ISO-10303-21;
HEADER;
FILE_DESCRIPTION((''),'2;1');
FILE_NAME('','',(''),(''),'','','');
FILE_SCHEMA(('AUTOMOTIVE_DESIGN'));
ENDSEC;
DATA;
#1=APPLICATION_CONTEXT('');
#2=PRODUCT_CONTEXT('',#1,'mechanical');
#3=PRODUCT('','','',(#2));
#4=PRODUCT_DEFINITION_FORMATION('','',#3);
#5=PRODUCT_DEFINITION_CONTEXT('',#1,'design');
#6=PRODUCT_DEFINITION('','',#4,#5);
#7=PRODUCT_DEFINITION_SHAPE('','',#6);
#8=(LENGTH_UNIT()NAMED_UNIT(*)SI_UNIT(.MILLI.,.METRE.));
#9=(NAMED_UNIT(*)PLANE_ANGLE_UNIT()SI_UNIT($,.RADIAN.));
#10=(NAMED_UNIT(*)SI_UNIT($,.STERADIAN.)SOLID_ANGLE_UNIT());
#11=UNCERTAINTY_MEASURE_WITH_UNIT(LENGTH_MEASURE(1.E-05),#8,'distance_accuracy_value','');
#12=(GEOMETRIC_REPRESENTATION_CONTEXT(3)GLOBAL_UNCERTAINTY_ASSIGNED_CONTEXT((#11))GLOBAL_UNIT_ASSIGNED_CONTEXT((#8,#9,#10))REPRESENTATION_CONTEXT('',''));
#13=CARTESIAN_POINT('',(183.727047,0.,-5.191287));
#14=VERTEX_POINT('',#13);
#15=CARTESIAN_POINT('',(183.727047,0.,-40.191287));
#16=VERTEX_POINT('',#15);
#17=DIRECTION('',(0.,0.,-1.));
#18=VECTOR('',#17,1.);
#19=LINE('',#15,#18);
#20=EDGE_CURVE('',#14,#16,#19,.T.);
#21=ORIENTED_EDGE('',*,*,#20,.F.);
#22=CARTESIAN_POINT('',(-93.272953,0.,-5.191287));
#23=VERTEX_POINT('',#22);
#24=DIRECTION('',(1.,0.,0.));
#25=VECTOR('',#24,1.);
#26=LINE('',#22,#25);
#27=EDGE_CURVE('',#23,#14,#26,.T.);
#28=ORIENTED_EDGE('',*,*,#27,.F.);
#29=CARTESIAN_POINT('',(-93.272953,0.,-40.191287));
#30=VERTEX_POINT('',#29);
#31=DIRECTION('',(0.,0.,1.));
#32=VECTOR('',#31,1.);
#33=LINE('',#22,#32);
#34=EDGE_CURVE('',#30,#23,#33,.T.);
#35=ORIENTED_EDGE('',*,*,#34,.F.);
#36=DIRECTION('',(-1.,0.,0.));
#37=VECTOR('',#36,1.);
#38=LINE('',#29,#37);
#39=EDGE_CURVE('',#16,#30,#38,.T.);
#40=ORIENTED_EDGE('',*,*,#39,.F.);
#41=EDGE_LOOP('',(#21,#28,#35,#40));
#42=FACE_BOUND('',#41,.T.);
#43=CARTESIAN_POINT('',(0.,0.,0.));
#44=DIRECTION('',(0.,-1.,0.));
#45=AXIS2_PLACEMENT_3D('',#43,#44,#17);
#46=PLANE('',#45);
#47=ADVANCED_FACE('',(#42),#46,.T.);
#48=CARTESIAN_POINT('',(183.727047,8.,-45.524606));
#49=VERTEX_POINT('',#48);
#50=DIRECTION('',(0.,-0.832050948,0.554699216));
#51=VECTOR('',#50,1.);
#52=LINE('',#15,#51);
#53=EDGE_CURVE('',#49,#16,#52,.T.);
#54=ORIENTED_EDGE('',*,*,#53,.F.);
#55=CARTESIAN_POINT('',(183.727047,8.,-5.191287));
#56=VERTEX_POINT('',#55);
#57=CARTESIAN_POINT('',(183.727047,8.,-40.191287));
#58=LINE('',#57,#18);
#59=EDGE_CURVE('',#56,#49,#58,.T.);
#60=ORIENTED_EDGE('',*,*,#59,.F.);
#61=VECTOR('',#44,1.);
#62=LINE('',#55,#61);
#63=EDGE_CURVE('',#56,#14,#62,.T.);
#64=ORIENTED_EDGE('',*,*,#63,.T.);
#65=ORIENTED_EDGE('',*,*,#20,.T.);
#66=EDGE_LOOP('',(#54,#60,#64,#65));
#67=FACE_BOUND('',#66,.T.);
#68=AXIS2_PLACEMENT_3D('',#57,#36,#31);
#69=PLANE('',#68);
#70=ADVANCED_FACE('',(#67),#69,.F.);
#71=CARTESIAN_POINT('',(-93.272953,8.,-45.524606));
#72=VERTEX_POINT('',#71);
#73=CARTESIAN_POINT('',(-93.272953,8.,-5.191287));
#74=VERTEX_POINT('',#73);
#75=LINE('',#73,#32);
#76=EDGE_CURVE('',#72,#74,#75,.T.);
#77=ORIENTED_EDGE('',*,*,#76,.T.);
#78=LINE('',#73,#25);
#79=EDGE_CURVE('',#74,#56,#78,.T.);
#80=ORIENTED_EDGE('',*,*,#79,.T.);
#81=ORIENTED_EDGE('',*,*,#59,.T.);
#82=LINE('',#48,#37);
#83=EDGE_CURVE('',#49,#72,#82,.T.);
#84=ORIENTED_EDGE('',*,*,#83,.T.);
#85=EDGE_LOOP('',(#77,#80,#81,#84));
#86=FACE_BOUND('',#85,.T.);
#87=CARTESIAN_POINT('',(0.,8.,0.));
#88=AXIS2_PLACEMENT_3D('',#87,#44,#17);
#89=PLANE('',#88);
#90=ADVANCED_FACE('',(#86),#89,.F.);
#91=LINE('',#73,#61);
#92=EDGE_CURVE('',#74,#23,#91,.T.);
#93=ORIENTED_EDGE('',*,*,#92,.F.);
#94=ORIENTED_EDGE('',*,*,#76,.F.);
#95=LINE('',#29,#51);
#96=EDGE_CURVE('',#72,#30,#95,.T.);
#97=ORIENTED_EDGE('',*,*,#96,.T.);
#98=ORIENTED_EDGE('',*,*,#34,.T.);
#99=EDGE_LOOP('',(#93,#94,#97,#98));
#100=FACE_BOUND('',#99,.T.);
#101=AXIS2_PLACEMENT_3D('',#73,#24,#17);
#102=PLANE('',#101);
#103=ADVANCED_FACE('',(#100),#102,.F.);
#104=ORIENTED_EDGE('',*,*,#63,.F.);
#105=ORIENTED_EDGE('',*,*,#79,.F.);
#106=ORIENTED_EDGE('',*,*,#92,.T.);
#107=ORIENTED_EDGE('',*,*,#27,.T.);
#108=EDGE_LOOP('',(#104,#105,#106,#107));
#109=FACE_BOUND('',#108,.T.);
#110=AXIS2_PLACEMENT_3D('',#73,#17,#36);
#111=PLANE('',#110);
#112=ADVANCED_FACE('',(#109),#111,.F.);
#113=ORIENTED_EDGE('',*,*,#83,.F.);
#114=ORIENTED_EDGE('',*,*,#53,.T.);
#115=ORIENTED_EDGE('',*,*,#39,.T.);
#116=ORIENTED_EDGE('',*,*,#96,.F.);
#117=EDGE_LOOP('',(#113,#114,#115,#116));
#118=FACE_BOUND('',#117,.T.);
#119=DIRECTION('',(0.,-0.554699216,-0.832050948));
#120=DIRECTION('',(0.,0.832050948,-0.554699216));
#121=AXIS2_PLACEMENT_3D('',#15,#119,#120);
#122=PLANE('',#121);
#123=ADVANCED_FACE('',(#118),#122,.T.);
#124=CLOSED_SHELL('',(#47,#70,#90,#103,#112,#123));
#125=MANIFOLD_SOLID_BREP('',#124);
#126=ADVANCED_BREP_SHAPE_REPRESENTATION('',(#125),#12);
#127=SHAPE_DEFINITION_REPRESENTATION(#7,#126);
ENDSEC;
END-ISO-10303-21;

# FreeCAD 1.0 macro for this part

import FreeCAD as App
import Part
import Sketcher
Q = App.Units.Quantity

doc = App.newDocument("Part")
body = doc.addObject("PartDesign::Body", "Body")

sketch1 = body.newObject("Sketcher::SketchObject", "Sketch")
sketch1.AttachmentSupport = (doc.getObject("XZ_Plane"), [""])
sketch1.MapMode = "FlatFace"
sketch1.addGeometry(Part.LineSegment(App.Vector(-93, -40, 0), App.Vector(-93, -5, 0)), False)
sketch1.addGeometry(Part.LineSegment(App.Vector(-93, -5, 0), App.Vector(184, -5, 0)), False)
sketch1.addGeometry(Part.LineSegment(App.Vector(184, -5, 0), App.Vector(184, -40, 0)), False)
sketch1.addGeometry(Part.LineSegment(App.Vector(184, -40, 0), App.Vector(-93, -40, 0)), False)
sketch1.addConstraint(Sketcher.Constraint("Coincident", 0, 2, 1, 1))
sketch1.addConstraint(Sketcher.Constraint("Coincident", 1, 2, 2, 1))
sketch1.addConstraint(Sketcher.Constraint("Coincident", 2, 2, 3, 1))
sketch1.addConstraint(Sketcher.Constraint("Coincident", 3, 2, 0, 1))
sketch1.addConstraint(Sketcher.Constraint("Vertical", 0))
sketch1.addConstraint(Sketcher.Constraint("Horizontal", 1))
sketch1.addConstraint(Sketcher.Constraint("Vertical", 2))
sketch1.addConstraint(Sketcher.Constraint("Horizontal", 3))
sketch1.addConstraint(Sketcher.Constraint("DistanceX", 1, 1, 1, 2, 277.0))
sketch1.addConstraint(Sketcher.Constraint("DistanceY", 0, 1, 0, 2, 35.0))
sketch1.addConstraint(Sketcher.Constraint("DistanceX", 0, 2, -1, 1, 93.272953))
sketch1.addConstraint(Sketcher.Constraint("DistanceY", 0, 2, -1, 1, 5.191287))
pad1 = body.newObject("PartDesign::Pad", "Pad")
pad1.Profile = sketch1
pad1.Length = 8
pad1.Reversed = True

sketch2 = body.newObject("Sketcher::SketchObject", "Sketch001")
sketch2.AttachmentSupport = (doc.getObject("YZ_Plane"), [""])
sketch2.MapMode = "FlatFace"
sketch2.AttachmentOffset = App.Placement(App.Vector(0, 0, -93.272953), App.Rotation())
sketch2.addGeometry(Part.LineSegment(App.Vector(8, -46, 0), App.Vector(0, -40, 0)), False)
sketch2.addGeometry(Part.LineSegment(App.Vector(0, -40, 0), App.Vector(8, -40, 0)), False)
sketch2.addGeometry(Part.LineSegment(App.Vector(8, -40, 0), App.Vector(8, -46, 0)), False)
sketch2.addConstraint(Sketcher.Constraint("Coincident", 0, 2, 1, 1))
sketch2.addConstraint(Sketcher.Constraint("Coincident", 1, 2, 2, 1))
sketch2.addConstraint(Sketcher.Constraint("Coincident", 2, 2, 0, 1))
sketch2.addConstraint(Sketcher.Constraint("Horizontal", 1))
sketch2.addConstraint(Sketcher.Constraint("Vertical", 2))
sketch2.addConstraint(Sketcher.Constraint("PointOnObject", 0, 2, -2))
sketch2.addConstraint(Sketcher.Constraint("DistanceX", 1, 1, 1, 2, 8.0))
sketch2.addConstraint(Sketcher.Constraint("Angle", 0, Q("146.31 deg")))
sketch2.addConstraint(Sketcher.Constraint("DistanceY", 0, 2, -1, 1, 40.191287))
pad2 = body.newObject("PartDesign::Pad", "Pad001")
pad2.Profile = sketch2
pad2.Length = 277

doc.recompute()
